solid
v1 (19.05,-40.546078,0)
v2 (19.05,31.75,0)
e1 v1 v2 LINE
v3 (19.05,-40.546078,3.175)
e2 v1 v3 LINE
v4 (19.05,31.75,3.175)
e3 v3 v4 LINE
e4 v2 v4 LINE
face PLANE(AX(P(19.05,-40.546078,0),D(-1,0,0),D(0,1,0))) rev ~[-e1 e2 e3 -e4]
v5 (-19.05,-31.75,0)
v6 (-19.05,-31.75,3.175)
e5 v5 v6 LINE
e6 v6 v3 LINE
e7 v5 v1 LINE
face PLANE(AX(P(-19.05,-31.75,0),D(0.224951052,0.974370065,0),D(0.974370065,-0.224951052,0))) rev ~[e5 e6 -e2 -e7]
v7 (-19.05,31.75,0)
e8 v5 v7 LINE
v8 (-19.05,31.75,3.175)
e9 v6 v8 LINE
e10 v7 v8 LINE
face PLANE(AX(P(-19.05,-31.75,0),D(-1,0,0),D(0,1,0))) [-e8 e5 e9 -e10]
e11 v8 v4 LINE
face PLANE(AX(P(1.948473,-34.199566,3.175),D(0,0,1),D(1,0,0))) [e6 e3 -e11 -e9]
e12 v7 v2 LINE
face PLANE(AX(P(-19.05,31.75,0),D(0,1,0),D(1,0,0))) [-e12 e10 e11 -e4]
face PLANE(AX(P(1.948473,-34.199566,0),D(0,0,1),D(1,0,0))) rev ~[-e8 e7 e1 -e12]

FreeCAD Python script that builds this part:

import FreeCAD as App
import Part
import Sketcher
from FreeCAD import Vector
Q = App.Units.Quantity


def add_polygon(sketch, points):
    """Adds a closed chain of lines whose ends are joined by coincident constraints."""
    first, n = sketch.GeometryCount, len(points)
    for a, b in zip(points, points[1:] + points[:1]):
        sketch.addGeometry(Part.LineSegment(App.Vector(*a, 0), App.Vector(*b, 0)), False)
    for i in range(n):
        sketch.addConstraint(Sketcher.Constraint("Coincident", first + i, 2, first + (i + 1) % n, 1))

doc = App.newDocument("Part")
body = doc.addObject("PartDesign::Body", "Body")

# Sketch on XY plane
sketch1 = body.newObject("Sketcher::SketchObject", "Sketch")
sketch1.AttachmentSupport = (doc.getObject("XY_Plane"), [""])
sketch1.MapMode = "FlatFace"
add_polygon(sketch1, [(19.05, -40.546078), (19.05, 31.75), (-19.05, 31.75), (-19.05, -31.75)])  # lines 0-3
sketch1.addConstraint(Sketcher.Constraint("Vertical", 0))
sketch1.addConstraint(Sketcher.Constraint("Horizontal", 1))
sketch1.addConstraint(Sketcher.Constraint("Vertical", 2))
sketch1.addConstraint(Sketcher.Constraint("Symmetric", 0, 2, 2, 2, -1, 1))
sketch1.addConstraint(Sketcher.Constraint("DistanceX", 1, 2, 1, 1, Q("1.5 in")))
sketch1.addConstraint(Sketcher.Constraint("DistanceY", 2, 2, 2, 1, Q("2.5 in")))
sketch1.addConstraint(Sketcher.Constraint("Angle", 3, Q("-13 deg")))
pad1 = body.newObject("PartDesign::Pad", "Pad")
pad1.Profile = sketch1
pad1.Length = Q("0.125 in")

doc.recompute()
